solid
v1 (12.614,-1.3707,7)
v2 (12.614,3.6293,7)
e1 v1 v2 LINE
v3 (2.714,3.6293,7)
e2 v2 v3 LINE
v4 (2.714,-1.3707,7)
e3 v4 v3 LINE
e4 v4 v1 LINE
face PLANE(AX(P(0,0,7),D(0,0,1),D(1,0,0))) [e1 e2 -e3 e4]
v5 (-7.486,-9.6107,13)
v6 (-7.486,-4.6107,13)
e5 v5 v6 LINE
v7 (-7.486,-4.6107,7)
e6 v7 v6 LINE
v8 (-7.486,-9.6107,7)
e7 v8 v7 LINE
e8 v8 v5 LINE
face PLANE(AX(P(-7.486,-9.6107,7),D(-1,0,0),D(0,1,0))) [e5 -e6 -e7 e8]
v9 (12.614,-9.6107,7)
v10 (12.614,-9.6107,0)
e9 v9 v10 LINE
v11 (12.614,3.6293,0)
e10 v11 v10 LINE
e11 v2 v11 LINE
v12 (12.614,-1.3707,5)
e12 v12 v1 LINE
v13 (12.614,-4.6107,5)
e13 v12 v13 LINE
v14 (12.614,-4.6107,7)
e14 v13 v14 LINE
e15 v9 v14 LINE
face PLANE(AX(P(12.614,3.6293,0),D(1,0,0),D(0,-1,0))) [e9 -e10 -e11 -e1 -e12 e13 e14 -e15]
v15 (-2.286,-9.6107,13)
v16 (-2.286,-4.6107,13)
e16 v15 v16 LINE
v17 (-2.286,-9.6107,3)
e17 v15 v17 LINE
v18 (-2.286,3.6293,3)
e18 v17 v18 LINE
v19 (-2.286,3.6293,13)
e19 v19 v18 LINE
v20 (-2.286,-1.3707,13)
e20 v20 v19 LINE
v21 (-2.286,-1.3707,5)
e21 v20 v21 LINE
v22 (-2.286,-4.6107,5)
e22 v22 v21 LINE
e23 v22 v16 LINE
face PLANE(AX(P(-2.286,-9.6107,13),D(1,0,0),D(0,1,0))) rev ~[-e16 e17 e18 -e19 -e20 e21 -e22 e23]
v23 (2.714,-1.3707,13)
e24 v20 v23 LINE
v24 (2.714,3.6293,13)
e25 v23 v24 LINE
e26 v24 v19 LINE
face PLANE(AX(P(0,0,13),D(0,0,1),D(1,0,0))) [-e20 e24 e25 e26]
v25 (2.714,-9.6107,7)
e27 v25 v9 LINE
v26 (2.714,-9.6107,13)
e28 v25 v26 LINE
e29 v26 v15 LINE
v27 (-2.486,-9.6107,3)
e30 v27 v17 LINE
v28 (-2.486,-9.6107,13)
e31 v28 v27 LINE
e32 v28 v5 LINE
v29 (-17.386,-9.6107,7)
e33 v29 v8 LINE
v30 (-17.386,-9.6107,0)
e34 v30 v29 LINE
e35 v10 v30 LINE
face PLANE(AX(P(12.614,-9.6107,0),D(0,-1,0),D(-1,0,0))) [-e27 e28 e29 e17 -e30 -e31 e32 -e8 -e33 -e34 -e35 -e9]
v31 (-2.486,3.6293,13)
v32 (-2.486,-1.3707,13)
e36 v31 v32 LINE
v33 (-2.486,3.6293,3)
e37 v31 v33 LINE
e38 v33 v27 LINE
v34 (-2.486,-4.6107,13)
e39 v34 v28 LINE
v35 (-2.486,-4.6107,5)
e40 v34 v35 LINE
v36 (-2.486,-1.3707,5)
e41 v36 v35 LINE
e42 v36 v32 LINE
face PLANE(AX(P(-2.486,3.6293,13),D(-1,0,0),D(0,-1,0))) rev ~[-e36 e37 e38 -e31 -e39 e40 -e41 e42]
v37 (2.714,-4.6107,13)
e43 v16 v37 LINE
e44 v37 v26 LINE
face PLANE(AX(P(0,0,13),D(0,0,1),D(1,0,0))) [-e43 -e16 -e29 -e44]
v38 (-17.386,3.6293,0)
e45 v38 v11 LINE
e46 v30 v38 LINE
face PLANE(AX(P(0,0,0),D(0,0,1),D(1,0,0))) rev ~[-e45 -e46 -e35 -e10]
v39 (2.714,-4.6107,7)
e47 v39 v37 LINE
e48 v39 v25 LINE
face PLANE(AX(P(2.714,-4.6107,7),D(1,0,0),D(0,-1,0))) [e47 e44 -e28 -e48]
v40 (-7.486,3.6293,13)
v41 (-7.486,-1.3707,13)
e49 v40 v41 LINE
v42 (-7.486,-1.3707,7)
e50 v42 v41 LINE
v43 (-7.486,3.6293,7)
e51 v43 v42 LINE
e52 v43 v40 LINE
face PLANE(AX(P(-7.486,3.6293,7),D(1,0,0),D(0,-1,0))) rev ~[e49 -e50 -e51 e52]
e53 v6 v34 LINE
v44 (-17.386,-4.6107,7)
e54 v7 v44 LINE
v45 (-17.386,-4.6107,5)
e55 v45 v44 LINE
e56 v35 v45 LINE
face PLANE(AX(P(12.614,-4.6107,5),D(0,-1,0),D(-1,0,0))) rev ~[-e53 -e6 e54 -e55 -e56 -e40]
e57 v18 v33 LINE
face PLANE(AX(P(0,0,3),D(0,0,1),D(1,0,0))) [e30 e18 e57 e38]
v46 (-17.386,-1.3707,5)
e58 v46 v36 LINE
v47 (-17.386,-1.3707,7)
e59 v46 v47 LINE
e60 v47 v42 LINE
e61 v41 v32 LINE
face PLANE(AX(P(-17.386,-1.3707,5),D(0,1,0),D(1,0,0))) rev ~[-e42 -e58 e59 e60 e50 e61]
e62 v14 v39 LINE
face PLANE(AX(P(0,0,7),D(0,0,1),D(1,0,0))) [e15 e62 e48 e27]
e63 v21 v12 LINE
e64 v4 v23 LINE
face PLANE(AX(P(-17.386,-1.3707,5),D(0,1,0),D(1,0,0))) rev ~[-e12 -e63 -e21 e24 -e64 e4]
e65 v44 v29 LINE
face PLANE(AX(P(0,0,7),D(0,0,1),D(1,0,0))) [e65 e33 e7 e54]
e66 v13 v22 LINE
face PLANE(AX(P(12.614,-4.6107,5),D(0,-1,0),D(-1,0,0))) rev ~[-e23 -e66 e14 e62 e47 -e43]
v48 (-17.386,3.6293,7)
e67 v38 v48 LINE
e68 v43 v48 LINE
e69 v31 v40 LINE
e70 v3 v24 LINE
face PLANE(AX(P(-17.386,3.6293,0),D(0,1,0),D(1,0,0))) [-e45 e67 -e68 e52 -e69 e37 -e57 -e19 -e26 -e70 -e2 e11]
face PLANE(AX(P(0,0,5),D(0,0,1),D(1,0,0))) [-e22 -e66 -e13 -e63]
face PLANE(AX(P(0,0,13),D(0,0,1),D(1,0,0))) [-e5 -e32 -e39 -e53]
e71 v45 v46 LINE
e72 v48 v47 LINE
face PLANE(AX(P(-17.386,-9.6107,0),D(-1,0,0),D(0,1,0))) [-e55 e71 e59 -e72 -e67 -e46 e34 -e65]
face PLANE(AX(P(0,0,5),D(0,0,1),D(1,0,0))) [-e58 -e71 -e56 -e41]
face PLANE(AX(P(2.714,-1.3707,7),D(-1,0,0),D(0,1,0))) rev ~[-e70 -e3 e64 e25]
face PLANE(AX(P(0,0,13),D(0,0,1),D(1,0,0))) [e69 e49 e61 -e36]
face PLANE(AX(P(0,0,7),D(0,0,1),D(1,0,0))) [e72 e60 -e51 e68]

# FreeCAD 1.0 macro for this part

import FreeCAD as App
import Part
import Sketcher
from FreeCAD import Vector


def add_polygon(sketch, points):
    """Adds a closed chain of lines whose ends are joined by coincident constraints."""
    first, n = sketch.GeometryCount, len(points)
    for a, b in zip(points, points[1:] + points[:1]):
        sketch.addGeometry(Part.LineSegment(App.Vector(*a, 0), App.Vector(*b, 0)), False)
    for i in range(n):
        sketch.addConstraint(Sketcher.Constraint("Coincident", first + i, 2, first + (i + 1) % n, 1))

doc = App.newDocument("Part")
params = doc.addObject("Spreadsheet::Sheet", "Params")
for row, (alias, value) in enumerate([
    ("sketch1_width", "30 mm"),
    ("sketch1_height", "13.24 mm"),
    ("pad1_length", "5 mm"),
    ("sketch2_height", "5 mm"),
    ("sketch2_width", "30 mm"),
    ("pad2_length", "2 mm"),
    ("sketch3_width", "10.2 mm"),
    ("sketch3_height", "5 mm"),
    ("pad3_length", "6 mm"),
    ("sketch4_width", "0.2 mm"),
    ("sketch4_height", "13.24 mm"),
    ("pocket1_length", "10 mm"),
], start=1):
    params.set(f"A{row}", alias)
    params.set(f"B{row}", "=" + value)
    params.setAlias(f"B{row}", alias)

body = doc.addObject("PartDesign::Body", "Body")

sketch1 = body.newObject("Sketcher::SketchObject", "Sketch")
sketch1.AttachmentSupport = (doc.getObject("XY_Plane"), [""])
sketch1.MapMode = "FlatFace"
add_polygon(sketch1, [(12.614, 3.6293), (-17.386, 3.6293), (-17.386, -9.6107), (12.614, -9.6107)])
sketch1.addConstraint(Sketcher.Constraint("Horizontal", 0))
sketch1.addConstraint(Sketcher.Constraint("Vertical", 1))
sketch1.addConstraint(Sketcher.Constraint("Horizontal", 2))
sketch1.addConstraint(Sketcher.Constraint("Vertical", 3))
sketch1.addConstraint(Sketcher.Constraint("DistanceX", 0, 2, 0, 1, 30.0))
sketch1.addConstraint(Sketcher.Constraint("DistanceY", 1, 2, 1, 1, 13.24))
sketch1.addConstraint(Sketcher.Constraint("DistanceX", 0, 2, -1, 1, 17.386))
sketch1.addConstraint(Sketcher.Constraint("DistanceY", -1, 1, 0, 2, 3.6293))
sketch1.setExpression("Constraints[8]", "Params.sketch1_width")
sketch1.setExpression("Constraints[9]", "Params.sketch1_height")
pad1 = body.newObject("PartDesign::Pad", "Pad")
pad1.Profile = sketch1
pad1.setExpression("Length", "Params.pad1_length")

sketch2 = body.newObject("Sketcher::SketchObject", "Sketch001")
sketch2.AttachmentSupport = (doc.getObject("XY_Plane"), [""])
sketch2.MapMode = "FlatFace"
sketch2.AttachmentOffset = App.Placement(Vector(0, 0, 5), App.Rotation())
add_polygon(sketch2, [(12.614, -1.3707), (12.614, 3.6293), (-17.386, 3.6293), (-17.386, -1.3707)])
add_polygon(sketch2, [(12.614, -9.6107), (12.614, -4.6107), (-17.386, -4.6107), (-17.386, -9.6107)])
sketch2.addConstraint(Sketcher.Constraint("Vertical", 0))
sketch2.addConstraint(Sketcher.Constraint("Horizontal", 1))
sketch2.addConstraint(Sketcher.Constraint("Vertical", 2))
sketch2.addConstraint(Sketcher.Constraint("Horizontal", 3))
sketch2.addConstraint(Sketcher.Constraint("Vertical", 4))
sketch2.addConstraint(Sketcher.Constraint("Horizontal", 5))
sketch2.addConstraint(Sketcher.Constraint("Vertical", 6))
sketch2.addConstraint(Sketcher.Constraint("Horizontal", 7))
sketch2.addConstraint(Sketcher.Constraint("Vertical", 3, 2, 4, 2))
sketch2.addConstraint(Sketcher.Constraint("Vertical", 2, 2, 5, 2))
sketch2.addConstraint(Sketcher.Constraint("Equal", 2, 4))
sketch2.addConstraint(Sketcher.Constraint("DistanceY", 0, 1, 0, 2, 5.0))
sketch2.addConstraint(Sketcher.Constraint("DistanceX", 1, 2, 1, 1, 30.0))
sketch2.addConstraint(Sketcher.Constraint("DistanceY", 4, 2, 3, 2, 3.24))
sketch2.addConstraint(Sketcher.Constraint("DistanceX", -1, 1, 0, 2, 12.614))
sketch2.addConstraint(Sketcher.Constraint("DistanceY", -1, 1, 0, 2, 3.6293))
sketch2.setExpression("Constraints[19]", "Params.sketch2_height")
sketch2.setExpression("Constraints[20]", "Params.sketch2_width")
pad2 = body.newObject("PartDesign::Pad", "Pad001")
pad2.Profile = sketch2
pad2.setExpression("Length", "Params.pad2_length")

sketch3 = body.newObject("Sketcher::SketchObject", "Sketch002")
sketch3.AttachmentSupport = (doc.getObject("XY_Plane"), [""])
sketch3.MapMode = "FlatFace"
sketch3.AttachmentOffset = App.Placement(Vector(0, 0, 7), App.Rotation())
add_polygon(sketch3, [(2.714, -1.3707), (2.714, 3.6293), (-7.486, 3.6293), (-7.486, -1.3707)])
add_polygon(sketch3, [(-7.486, -9.6107), (2.714, -9.6107), (2.714, -4.6107), (-7.486, -4.6107)])
sketch3.addConstraint(Sketcher.Constraint("Vertical", 0))
sketch3.addConstraint(Sketcher.Constraint("Horizontal", 1))
sketch3.addConstraint(Sketcher.Constraint("Vertical", 2))
sketch3.addConstraint(Sketcher.Constraint("Horizontal", 3))
sketch3.addConstraint(Sketcher.Constraint("Horizontal", 4))
sketch3.addConstraint(Sketcher.Constraint("Vertical", 5))
sketch3.addConstraint(Sketcher.Constraint("Horizontal", 6))
sketch3.addConstraint(Sketcher.Constraint("Vertical", 7))
sketch3.addConstraint(Sketcher.Constraint("Vertical", 3, 2, 4, 2))
sketch3.addConstraint(Sketcher.Constraint("Vertical", 2, 2, 6, 2))
sketch3.addConstraint(Sketcher.Constraint("Equal", 2, 5))
sketch3.addConstraint(Sketcher.Constraint("DistanceX", 1, 2, 1, 1, 10.2))
sketch3.addConstraint(Sketcher.Constraint("DistanceY", 0, 1, 0, 2, 5.0))
sketch3.addConstraint(Sketcher.Constraint("DistanceY", 4, 2, 3, 2, 8.24))
sketch3.addConstraint(Sketcher.Constraint("DistanceX", -1, 1, 0, 2, 2.714))
sketch3.addConstraint(Sketcher.Constraint("DistanceY", -1, 1, 0, 2, 3.6293))
sketch3.setExpression("Constraints[19]", "Params.sketch3_width")
sketch3.setExpression("Constraints[20]", "Params.sketch3_height")
pad3 = body.newObject("PartDesign::Pad", "Pad002")
pad3.Profile = sketch3
pad3.setExpression("Length", "Params.pad3_length")

sketch4 = body.newObject("Sketcher::SketchObject", "Sketch003")
sketch4.AttachmentSupport = (doc.getObject("XY_Plane"), [""])
sketch4.MapMode = "FlatFace"
sketch4.AttachmentOffset = App.Placement(Vector(0, 0, 13), App.Rotation())
add_polygon(sketch4, [(-2.286, -9.6107), (-2.286, 3.6293), (-2.486, 3.6293), (-2.486, -9.6107)])
sketch4.addConstraint(Sketcher.Constraint("Vertical", 0))
sketch4.addConstraint(Sketcher.Constraint("Horizontal", 1))
sketch4.addConstraint(Sketcher.Constraint("Vertical", 2))
sketch4.addConstraint(Sketcher.Constraint("Horizontal", 3))
sketch4.addConstraint(Sketcher.Constraint("DistanceX", 1, 2, 1, 1, 0.2))
sketch4.addConstraint(Sketcher.Constraint("DistanceY", 0, 1, 0, 2, 13.24))
sketch4.addConstraint(Sketcher.Constraint("DistanceX", 0, 2, -1, 1, 2.286))
sketch4.addConstraint(Sketcher.Constraint("DistanceY", -1, 1, 0, 2, 3.6293))
sketch4.setExpression("Constraints[8]", "Params.sketch4_width")
sketch4.setExpression("Constraints[9]", "Params.sketch4_height")
pocket1 = body.newObject("PartDesign::Pocket", "Pocket")
pocket1.Profile = sketch4
pocket1.setExpression("Length", "Params.pocket1_length")

doc.recompute()
